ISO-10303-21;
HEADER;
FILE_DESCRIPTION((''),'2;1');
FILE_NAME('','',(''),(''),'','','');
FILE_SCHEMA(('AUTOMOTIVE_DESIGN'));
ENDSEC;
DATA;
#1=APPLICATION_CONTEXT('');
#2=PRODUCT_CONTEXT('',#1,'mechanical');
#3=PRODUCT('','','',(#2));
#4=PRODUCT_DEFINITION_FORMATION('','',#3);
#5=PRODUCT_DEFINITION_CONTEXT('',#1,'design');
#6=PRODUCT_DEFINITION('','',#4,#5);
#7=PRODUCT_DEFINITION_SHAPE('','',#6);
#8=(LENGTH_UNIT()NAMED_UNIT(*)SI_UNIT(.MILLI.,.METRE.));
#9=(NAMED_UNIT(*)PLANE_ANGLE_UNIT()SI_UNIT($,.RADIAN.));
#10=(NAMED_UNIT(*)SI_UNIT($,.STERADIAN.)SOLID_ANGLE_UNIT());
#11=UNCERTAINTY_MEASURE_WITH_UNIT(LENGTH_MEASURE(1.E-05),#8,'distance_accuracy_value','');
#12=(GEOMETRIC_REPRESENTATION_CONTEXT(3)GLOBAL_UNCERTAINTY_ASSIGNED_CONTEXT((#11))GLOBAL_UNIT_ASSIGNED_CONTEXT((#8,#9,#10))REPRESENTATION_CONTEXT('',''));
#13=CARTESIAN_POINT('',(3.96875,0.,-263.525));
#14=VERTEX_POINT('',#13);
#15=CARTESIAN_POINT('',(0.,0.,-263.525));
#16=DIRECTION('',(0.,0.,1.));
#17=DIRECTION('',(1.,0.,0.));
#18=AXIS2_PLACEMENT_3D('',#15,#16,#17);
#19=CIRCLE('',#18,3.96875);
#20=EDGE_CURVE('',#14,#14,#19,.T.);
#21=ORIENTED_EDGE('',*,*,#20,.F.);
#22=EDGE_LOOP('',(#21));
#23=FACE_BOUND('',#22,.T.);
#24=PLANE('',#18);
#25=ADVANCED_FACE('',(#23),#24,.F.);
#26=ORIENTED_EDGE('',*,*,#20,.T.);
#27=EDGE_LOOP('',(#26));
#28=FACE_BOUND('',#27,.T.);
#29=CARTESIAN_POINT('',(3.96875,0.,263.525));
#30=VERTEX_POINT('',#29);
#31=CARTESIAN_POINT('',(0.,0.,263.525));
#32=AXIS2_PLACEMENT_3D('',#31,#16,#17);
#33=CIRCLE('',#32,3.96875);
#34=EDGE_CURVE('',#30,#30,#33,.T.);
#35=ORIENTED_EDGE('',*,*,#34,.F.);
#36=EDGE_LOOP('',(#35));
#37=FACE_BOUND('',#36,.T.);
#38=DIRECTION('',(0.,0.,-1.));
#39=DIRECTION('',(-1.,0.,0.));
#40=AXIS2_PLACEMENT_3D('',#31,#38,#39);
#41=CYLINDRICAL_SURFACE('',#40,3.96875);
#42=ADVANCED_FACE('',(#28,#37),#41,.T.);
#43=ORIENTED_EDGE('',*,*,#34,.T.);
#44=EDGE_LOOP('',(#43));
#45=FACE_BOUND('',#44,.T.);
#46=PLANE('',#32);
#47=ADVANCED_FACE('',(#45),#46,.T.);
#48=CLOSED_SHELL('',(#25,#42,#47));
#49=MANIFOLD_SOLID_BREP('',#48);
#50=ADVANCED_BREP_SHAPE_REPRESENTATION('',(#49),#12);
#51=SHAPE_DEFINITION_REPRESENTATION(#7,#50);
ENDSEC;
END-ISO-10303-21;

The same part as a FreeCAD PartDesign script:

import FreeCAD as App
import Part
import Sketcher
Q = App.Units.Quantity

doc = App.newDocument("Part")
params = doc.addObject("Spreadsheet::Sheet", "Params")
for row, (alias, value) in enumerate([
    ("sketch1_diameter", "0.3125 in"),
    ("pad1_length", "20.75 in"),
], start=1):
    params.set(f"A{row}", alias)
    params.set(f"B{row}", "=" + value)
    params.setAlias(f"B{row}", alias)

body = doc.addObject("PartDesign::Body", "Body")

sketch1 = body.newObject("Sketcher::SketchObject", "Sketch")
sketch1.AttachmentSupport = (doc.getObject("XY_Plane"), [""])
sketch1.MapMode = "FlatFace"
sketch1.addGeometry(Part.Circle(App.Vector(0, 0, 0), App.Vector(0, 0, 1), 3.96875), False)
sketch1.addConstraint([
    Sketcher.Constraint("Coincident", 0, 3, -1, 1),
    Sketcher.Constraint("Diameter", 0, Q("0.3125 in")),
])
sketch1.setExpression("Constraints[1]", "Params.sketch1_diameter")
pad1 = body.newObject("PartDesign::Pad", "Pad")
pad1.Profile = sketch1
pad1.setExpression("Length", "Params.pad1_length")
pad1.Midplane = True

doc.recompute()
